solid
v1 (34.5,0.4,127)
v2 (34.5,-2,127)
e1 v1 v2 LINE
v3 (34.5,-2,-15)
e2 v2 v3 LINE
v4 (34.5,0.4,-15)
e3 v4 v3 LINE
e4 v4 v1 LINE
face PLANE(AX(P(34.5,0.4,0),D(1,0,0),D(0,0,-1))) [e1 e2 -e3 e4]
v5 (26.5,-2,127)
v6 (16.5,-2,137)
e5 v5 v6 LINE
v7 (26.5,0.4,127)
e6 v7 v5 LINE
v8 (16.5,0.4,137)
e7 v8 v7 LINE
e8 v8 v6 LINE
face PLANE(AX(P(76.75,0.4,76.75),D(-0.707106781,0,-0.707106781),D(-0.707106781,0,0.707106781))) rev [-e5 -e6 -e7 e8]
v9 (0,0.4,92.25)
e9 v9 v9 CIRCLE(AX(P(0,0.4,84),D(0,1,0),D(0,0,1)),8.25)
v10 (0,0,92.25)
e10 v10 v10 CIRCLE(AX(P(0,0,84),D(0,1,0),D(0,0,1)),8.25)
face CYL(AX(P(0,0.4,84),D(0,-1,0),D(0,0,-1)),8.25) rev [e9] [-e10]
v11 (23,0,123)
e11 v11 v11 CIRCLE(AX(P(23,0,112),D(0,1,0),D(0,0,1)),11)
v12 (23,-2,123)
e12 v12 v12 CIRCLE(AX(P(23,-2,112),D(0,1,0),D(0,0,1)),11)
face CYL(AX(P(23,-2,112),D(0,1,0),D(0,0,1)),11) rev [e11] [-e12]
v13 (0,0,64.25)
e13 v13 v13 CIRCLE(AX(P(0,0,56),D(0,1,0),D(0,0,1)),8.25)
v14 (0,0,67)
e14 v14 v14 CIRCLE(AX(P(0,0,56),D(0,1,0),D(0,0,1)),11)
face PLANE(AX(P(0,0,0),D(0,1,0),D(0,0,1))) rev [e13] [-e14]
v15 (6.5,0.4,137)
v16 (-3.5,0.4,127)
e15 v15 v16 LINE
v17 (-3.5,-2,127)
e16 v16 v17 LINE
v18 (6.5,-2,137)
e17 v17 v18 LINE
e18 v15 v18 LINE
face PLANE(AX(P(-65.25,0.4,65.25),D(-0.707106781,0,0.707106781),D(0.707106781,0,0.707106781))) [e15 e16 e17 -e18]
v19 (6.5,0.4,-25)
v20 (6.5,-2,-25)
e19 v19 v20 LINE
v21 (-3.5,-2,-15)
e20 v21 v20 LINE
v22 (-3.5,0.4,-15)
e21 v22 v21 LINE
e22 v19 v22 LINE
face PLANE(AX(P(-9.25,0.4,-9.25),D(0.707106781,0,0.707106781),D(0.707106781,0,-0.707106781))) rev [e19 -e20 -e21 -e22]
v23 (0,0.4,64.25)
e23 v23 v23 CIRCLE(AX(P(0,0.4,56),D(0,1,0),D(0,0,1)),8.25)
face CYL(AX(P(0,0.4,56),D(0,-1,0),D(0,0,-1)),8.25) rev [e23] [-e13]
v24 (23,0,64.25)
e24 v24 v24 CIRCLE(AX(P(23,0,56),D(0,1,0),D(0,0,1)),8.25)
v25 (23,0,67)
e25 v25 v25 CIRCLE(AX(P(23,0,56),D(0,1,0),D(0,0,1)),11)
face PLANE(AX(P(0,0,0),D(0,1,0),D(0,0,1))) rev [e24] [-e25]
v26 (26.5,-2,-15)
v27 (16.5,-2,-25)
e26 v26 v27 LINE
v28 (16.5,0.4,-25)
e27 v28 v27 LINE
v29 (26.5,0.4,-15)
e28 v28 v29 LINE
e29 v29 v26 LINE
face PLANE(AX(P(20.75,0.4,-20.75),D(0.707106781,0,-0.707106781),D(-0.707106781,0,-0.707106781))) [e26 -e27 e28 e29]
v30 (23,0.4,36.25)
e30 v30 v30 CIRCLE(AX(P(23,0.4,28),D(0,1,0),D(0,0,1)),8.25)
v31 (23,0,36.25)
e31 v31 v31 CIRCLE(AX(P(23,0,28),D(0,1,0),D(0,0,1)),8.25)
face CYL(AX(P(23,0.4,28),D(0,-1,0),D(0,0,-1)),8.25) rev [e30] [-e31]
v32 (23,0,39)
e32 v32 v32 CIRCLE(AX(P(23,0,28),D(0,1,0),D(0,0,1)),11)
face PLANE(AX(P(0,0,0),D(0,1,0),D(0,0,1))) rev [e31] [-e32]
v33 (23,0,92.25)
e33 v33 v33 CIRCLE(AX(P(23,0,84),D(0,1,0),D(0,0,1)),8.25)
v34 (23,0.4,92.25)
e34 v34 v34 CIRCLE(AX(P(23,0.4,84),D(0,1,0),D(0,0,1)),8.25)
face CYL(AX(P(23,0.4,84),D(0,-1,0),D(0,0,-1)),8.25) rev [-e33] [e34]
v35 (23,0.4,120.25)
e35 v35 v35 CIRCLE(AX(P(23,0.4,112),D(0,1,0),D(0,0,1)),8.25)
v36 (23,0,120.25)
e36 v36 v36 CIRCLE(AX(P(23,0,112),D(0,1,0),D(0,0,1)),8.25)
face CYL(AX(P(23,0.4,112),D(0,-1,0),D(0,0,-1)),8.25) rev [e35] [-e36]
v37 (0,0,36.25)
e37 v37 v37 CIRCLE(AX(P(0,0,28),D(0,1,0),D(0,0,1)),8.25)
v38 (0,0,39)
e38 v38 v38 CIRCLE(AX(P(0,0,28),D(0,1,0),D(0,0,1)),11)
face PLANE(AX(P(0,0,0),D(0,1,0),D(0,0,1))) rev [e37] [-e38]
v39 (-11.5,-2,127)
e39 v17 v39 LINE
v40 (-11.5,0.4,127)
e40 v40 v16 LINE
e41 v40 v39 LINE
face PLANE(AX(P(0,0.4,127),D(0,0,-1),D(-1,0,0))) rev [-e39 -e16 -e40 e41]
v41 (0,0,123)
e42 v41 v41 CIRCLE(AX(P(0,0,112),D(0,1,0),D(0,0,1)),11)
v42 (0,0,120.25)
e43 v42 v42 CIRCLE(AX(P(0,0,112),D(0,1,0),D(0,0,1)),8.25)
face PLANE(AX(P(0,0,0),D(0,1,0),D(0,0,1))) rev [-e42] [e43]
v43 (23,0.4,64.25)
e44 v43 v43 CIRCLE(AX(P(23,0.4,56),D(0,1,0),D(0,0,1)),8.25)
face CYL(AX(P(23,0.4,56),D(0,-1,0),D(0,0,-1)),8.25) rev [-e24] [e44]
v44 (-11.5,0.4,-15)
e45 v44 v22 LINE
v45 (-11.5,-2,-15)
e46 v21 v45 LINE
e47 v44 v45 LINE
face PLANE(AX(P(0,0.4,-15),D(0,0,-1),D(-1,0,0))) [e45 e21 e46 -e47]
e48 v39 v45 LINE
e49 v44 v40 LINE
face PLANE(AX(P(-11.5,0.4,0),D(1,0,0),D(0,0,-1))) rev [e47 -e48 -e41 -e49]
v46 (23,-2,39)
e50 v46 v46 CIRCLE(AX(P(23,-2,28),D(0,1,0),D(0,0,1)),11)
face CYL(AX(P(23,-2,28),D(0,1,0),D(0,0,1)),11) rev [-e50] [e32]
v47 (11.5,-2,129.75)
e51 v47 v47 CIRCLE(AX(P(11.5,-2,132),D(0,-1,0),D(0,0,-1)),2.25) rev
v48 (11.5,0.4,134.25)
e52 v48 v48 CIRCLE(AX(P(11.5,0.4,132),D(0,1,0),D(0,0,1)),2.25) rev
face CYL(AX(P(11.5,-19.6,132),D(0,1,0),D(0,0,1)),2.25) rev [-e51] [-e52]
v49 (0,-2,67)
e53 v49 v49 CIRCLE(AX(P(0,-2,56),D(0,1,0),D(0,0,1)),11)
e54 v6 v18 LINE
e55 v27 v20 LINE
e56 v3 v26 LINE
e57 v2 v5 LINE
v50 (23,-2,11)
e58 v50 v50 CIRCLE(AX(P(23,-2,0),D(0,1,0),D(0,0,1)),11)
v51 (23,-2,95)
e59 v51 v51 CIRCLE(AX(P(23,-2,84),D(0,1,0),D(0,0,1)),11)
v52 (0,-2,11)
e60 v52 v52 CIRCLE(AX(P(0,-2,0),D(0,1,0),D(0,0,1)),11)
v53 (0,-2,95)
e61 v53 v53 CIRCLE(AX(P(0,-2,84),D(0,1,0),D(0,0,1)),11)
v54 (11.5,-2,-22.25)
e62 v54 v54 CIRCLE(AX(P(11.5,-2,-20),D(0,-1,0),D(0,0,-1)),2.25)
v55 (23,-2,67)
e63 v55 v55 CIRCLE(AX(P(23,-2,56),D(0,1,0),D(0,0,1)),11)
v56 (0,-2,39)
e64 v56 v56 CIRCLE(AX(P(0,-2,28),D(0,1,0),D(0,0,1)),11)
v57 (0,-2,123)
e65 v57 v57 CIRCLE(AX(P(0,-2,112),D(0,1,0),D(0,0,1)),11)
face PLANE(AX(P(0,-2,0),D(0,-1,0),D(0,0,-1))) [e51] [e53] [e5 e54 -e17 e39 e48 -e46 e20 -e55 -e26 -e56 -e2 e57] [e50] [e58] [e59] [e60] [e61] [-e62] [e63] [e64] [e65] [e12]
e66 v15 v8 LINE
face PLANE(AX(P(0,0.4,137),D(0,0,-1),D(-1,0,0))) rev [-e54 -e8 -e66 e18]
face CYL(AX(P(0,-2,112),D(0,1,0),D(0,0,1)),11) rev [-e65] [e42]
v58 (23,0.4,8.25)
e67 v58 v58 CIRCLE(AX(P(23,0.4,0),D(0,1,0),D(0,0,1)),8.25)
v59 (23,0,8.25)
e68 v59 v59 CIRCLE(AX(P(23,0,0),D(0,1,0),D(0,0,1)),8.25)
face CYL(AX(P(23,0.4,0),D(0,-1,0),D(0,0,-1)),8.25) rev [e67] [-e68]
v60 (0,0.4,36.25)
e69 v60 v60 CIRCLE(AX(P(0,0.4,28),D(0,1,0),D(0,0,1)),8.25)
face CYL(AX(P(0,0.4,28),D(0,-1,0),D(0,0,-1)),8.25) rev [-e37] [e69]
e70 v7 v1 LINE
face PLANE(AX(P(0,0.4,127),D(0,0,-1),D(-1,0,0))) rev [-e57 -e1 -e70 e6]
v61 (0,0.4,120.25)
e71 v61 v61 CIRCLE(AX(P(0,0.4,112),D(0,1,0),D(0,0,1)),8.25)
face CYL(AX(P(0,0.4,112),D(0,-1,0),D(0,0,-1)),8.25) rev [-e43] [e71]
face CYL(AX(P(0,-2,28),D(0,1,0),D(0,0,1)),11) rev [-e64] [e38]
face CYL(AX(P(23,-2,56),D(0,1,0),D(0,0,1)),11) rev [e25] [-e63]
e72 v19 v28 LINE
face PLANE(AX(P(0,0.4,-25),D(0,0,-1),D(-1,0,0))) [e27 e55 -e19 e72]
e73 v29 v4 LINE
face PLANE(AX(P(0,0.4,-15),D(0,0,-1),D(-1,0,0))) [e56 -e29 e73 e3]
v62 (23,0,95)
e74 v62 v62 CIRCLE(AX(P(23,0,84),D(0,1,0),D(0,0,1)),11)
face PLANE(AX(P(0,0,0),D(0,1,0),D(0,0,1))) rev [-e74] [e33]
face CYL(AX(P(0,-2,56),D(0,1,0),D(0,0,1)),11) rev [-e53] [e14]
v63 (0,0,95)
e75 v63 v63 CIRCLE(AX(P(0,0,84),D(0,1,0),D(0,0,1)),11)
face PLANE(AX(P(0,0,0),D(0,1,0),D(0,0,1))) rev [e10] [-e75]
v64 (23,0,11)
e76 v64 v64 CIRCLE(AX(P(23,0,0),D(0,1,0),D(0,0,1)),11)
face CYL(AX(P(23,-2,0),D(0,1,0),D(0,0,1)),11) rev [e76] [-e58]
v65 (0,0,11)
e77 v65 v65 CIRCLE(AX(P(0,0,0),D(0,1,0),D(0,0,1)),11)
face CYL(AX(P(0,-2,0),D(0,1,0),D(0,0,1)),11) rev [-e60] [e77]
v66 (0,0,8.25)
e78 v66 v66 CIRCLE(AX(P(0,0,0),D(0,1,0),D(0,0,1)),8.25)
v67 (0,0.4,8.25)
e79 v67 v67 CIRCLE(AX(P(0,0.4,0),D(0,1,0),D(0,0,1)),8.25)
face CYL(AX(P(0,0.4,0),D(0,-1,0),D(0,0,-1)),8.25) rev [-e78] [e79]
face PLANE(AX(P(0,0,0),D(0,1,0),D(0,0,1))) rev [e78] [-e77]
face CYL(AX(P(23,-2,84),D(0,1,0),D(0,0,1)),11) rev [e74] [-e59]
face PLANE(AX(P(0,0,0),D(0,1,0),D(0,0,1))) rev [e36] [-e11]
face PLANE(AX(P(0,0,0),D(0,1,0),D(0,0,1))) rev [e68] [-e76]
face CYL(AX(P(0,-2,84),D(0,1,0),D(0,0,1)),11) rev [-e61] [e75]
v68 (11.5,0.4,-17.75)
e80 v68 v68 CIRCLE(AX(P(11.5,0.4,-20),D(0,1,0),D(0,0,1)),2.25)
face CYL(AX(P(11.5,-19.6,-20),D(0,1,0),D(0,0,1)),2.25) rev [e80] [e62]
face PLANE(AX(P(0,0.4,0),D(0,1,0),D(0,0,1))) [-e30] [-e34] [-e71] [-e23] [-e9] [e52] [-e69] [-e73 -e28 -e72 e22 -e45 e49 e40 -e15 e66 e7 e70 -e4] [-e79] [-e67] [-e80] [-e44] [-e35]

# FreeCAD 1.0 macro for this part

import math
import FreeCAD as App
import Part
import Sketcher
from FreeCAD import Vector
Q = App.Units.Quantity


def add_polygon(sketch, points):
    """Adds a closed chain of lines whose ends are joined by coincident constraints."""
    first, n = sketch.GeometryCount, len(points)
    for a, b in zip(points, points[1:] + points[:1]):
        sketch.addGeometry(Part.LineSegment(App.Vector(*a, 0), App.Vector(*b, 0)), False)
    for i in range(n):
        sketch.addConstraint(Sketcher.Constraint("Coincident", first + i, 2, first + (i + 1) % n, 1))

doc = App.newDocument("Part")
body = doc.addObject("PartDesign::Body", "Body")

# Sketch on XZ plane
sketch1 = body.newObject("Sketcher::SketchObject", "Sketch")
sketch1.AttachmentSupport = (doc.getObject("XZ_Plane"), [""])
sketch1.MapMode = "FlatFace"
add_polygon(sketch1, [(-11.5, -15), (-11.5, 127), (-3.5, 127), (6.5, 137), (16.5, 137), (26.5, 127), (34.5, 127), (34.5, -15), (26.5, -15), (16.5, -25), (6.5, -25), (-3.5, -15)])  # lines 0-11
sketch1.addGeometry(Part.Circle(Vector(0, 112, 0), Vector(0, 0, 1), 8.25), False)  # 12
sketch1.addGeometry(Part.Circle(Vector(0, 84, 0), Vector(0, 0, 1), 8.25), False)  # 13
sketch1.addGeometry(Part.Circle(Vector(23, 112, 0), Vector(0, 0, 1), 8.25), False)  # 14
sketch1.addGeometry(Part.Circle(Vector(23, 84, 0), Vector(0, 0, 1), 8.25), False)  # 15
sketch1.addGeometry(Part.Circle(Vector(0, 56, 0), Vector(0, 0, 1), 8.25), False)  # 16
sketch1.addGeometry(Part.Circle(Vector(0, 28, 0), Vector(0, 0, 1), 8.25), False)  # 17
sketch1.addGeometry(Part.Circle(Vector(0, 0, 0), Vector(0, 0, 1), 8.25), False)  # 18
sketch1.addGeometry(Part.Circle(Vector(23, 56, 0), Vector(0, 0, 1), 8.25), False)  # 19
sketch1.addGeometry(Part.Circle(Vector(23, 28, 0), Vector(0, 0, 1), 8.25), False)  # 20
sketch1.addGeometry(Part.Circle(Vector(23, 0, 0), Vector(0, 0, 1), 8.25), False)  # 21
sketch1.addConstraint(Sketcher.Constraint("Vertical", 0))
sketch1.addConstraint(Sketcher.Constraint("Horizontal", 1))
sketch1.addConstraint(Sketcher.Constraint("Horizontal", 3))
sketch1.addConstraint(Sketcher.Constraint("Horizontal", 5))
sketch1.addConstraint(Sketcher.Constraint("Vertical", 6))
sketch1.addConstraint(Sketcher.Constraint("Horizontal", 7))
sketch1.addConstraint(Sketcher.Constraint("Horizontal", 9))
sketch1.addConstraint(Sketcher.Constraint("Horizontal", 11))
sketch1.addConstraint(Sketcher.Constraint("Coincident", 18, 3, -1, 1))
sketch1.addConstraint(Sketcher.Constraint("Equal", 12, 13))
sketch1.addConstraint(Sketcher.Constraint("Equal", 13, 14))
sketch1.addConstraint(Sketcher.Constraint("Equal", 14, 15))
sketch1.addConstraint(Sketcher.Constraint("Equal", 15, 16))
sketch1.addConstraint(Sketcher.Constraint("Equal", 16, 17))
sketch1.addConstraint(Sketcher.Constraint("Equal", 17, 18))
sketch1.addConstraint(Sketcher.Constraint("Equal", 18, 19))
sketch1.addConstraint(Sketcher.Constraint("Equal", 19, 20))
sketch1.addConstraint(Sketcher.Constraint("Equal", 20, 21))
sketch1.addConstraint(Sketcher.Constraint("PointOnObject", 12, 3, -2))
sketch1.addConstraint(Sketcher.Constraint("PointOnObject", 13, 3, -2))
sketch1.addConstraint(Sketcher.Constraint("PointOnObject", 16, 3, -2))
sketch1.addConstraint(Sketcher.Constraint("PointOnObject", 17, 3, -2))
sketch1.addConstraint(Sketcher.Constraint("PointOnObject", 21, 3, -1))
sketch1.addConstraint(Sketcher.Constraint("Perpendicular", 2, 4))
sketch1.addConstraint(Sketcher.Constraint("Perpendicular", 4, 8))
sketch1.addConstraint(Sketcher.Constraint("Perpendicular", 8, 10))
sketch1.addConstraint(Sketcher.Constraint("Horizontal", 12, 3, 14, 3))
sketch1.addConstraint(Sketcher.Constraint("Horizontal", 13, 3, 15, 3))
sketch1.addConstraint(Sketcher.Constraint("Horizontal", 16, 3, 19, 3))
sketch1.addConstraint(Sketcher.Constraint("Horizontal", 17, 3, 20, 3))
sketch1.addConstraint(Sketcher.Constraint("Horizontal", 1, 2, 4, 2))
sketch1.addConstraint(Sketcher.Constraint("Horizontal", 7, 2, 10, 2))
sketch1.addConstraint(Sketcher.Constraint("Vertical", 14, 3, 15, 3))
sketch1.addConstraint(Sketcher.Constraint("Vertical", 15, 3, 19, 3))
sketch1.addConstraint(Sketcher.Constraint("Vertical", 19, 3, 20, 3))
sketch1.addConstraint(Sketcher.Constraint("Vertical", 20, 3, 21, 3))
sketch1.addConstraint(Sketcher.Constraint("Vertical", 4, 2, 7, 2))
sketch1.addConstraint(Sketcher.Constraint("Vertical", 3, 2, 8, 2))
sketch1.addConstraint(Sketcher.Constraint("Vertical", 2, 2, 9, 2))
sketch1.addConstraint(Sketcher.Constraint("Vertical", 1, 2, 10, 2))
sketch1.addConstraint(Sketcher.Constraint("Equal", 1, 5))
sketch1.addConstraint(Sketcher.Constraint("Diameter", 12, Q("16.5 mm")))
sketch1.addConstraint(Sketcher.Constraint("DistanceX", 1, 1, 1, 2, Q("8 mm")))
sketch1.addConstraint(Sketcher.Constraint("DistanceX", 3, 1, 3, 2, Q("10 mm")))
sketch1.addConstraint(Sketcher.Constraint("DistanceY", 0, 1, 0, 2, Q("142 mm")))
sketch1.addConstraint(Sketcher.Constraint("DistanceY", -1, 1, 12, 3, Q("112 mm")))
sketch1.addConstraint(Sketcher.Constraint("DistanceY", -1, 1, 13, 3, Q("84 mm")))
sketch1.addConstraint(Sketcher.Constraint("DistanceX", -1, 1, 14, 3, Q("23 mm")))
sketch1.addConstraint(Sketcher.Constraint("DistanceY", -1, 1, 16, 3, Q("56 mm")))
sketch1.addConstraint(Sketcher.Constraint("DistanceY", -1, 1, 17, 3, Q("28 mm")))
sketch1.addConstraint(Sketcher.Constraint("DistanceY", -1, 1, 0, 2, Q("127 mm")))
sketch1.addConstraint(Sketcher.Constraint("DistanceY", -1, 1, 2, 2, Q("137 mm")))
sketch1.addConstraint(Sketcher.Constraint("DistanceX", 0, 2, -1, 1, Q("11.5 mm")))
pad1 = body.newObject("PartDesign::Pad", "Pad")
pad1.Profile = sketch1
pad1.Length = 0.4
pad1.Reversed = True

# Sketch on XZ plane
sketch2 = body.newObject("Sketcher::SketchObject", "Sketch001")
sketch2.AttachmentSupport = (doc.getObject("XZ_Plane"), [""])
sketch2.MapMode = "FlatFace"
add_polygon(sketch2, [(16.5, -25), (6.5, -25), (-3.5, -15), (-11.5, -15), (-11.5, 127), (-3.5, 127), (6.5, 137), (16.5, 137), (26.5, 127), (34.5, 127), (34.5, -15), (26.5, -15)])  # lines 0-11
sketch2.addGeometry(Part.Circle(Vector(0, 112, 0), Vector(0, 0, 1), 11), False)  # 12
sketch2.addGeometry(Part.Circle(Vector(0, 84, 0), Vector(0, 0, 1), 11), False)  # 13
sketch2.addGeometry(Part.Circle(Vector(23, 112, 0), Vector(0, 0, 1), 11), False)  # 14
sketch2.addGeometry(Part.Circle(Vector(23, 84, 0), Vector(0, 0, 1), 11), False)  # 15
sketch2.addGeometry(Part.Circle(Vector(0, 56, 0), Vector(0, 0, 1), 11), False)  # 16
sketch2.addGeometry(Part.Circle(Vector(0, 28, 0), Vector(0, 0, 1), 11), False)  # 17
sketch2.addGeometry(Part.Circle(Vector(0, 0, 0), Vector(0, 0, 1), 11), False)  # 18
sketch2.addGeometry(Part.Circle(Vector(23, 56, 0), Vector(0, 0, 1), 11), False)  # 19
sketch2.addGeometry(Part.Circle(Vector(23, 28, 0), Vector(0, 0, 1), 11), False)  # 20
sketch2.addGeometry(Part.Circle(Vector(23, 0, 0), Vector(0, 0, 1), 11), False)  # 21
sketch2.addConstraint(Sketcher.Constraint("Horizontal", 0))
sketch2.addConstraint(Sketcher.Constraint("Horizontal", 2))
sketch2.addConstraint(Sketcher.Constraint("Vertical", 3))
sketch2.addConstraint(Sketcher.Constraint("Horizontal", 4))
sketch2.addConstraint(Sketcher.Constraint("Horizontal", 6))
sketch2.addConstraint(Sketcher.Constraint("Horizontal", 8))
sketch2.addConstraint(Sketcher.Constraint("Vertical", 9))
sketch2.addConstraint(Sketcher.Constraint("Horizontal", 10))
sketch2.addConstraint(Sketcher.Constraint("Coincident", 18, 3, -1, 1))
sketch2.addConstraint(Sketcher.Constraint("Equal", 12, 13))
sketch2.addConstraint(Sketcher.Constraint("Equal", 13, 14))
sketch2.addConstraint(Sketcher.Constraint("Equal", 14, 15))
sketch2.addConstraint(Sketcher.Constraint("Equal", 15, 16))
sketch2.addConstraint(Sketcher.Constraint("Equal", 16, 17))
sketch2.addConstraint(Sketcher.Constraint("Equal", 17, 18))
sketch2.addConstraint(Sketcher.Constraint("Equal", 18, 19))
sketch2.addConstraint(Sketcher.Constraint("Equal", 19, 20))
sketch2.addConstraint(Sketcher.Constraint("Equal", 20, 21))
sketch2.addConstraint(Sketcher.Constraint("PointOnObject", 12, 3, -2))
sketch2.addConstraint(Sketcher.Constraint("PointOnObject", 13, 3, -2))
sketch2.addConstraint(Sketcher.Constraint("PointOnObject", 16, 3, -2))
sketch2.addConstraint(Sketcher.Constraint("PointOnObject", 17, 3, -2))
sketch2.addConstraint(Sketcher.Constraint("PointOnObject", 21, 3, -1))
sketch2.addConstraint(Sketcher.Constraint("Perpendicular", 1, 5))
sketch2.addConstraint(Sketcher.Constraint("Perpendicular", 5, 7))
sketch2.addConstraint(Sketcher.Constraint("Perpendicular", 7, 11))
sketch2.addConstraint(Sketcher.Constraint("Horizontal", 12, 3, 14, 3))
sketch2.addConstraint(Sketcher.Constraint("Horizontal", 13, 3, 15, 3))
sketch2.addConstraint(Sketcher.Constraint("Horizontal", 16, 3, 19, 3))
sketch2.addConstraint(Sketcher.Constraint("Horizontal", 17, 3, 20, 3))
sketch2.addConstraint(Sketcher.Constraint("Horizontal", 4, 2, 7, 2))
sketch2.addConstraint(Sketcher.Constraint("Horizontal", 2, 2, 9, 2))
sketch2.addConstraint(Sketcher.Constraint("Vertical", 14, 3, 15, 3))
sketch2.addConstraint(Sketcher.Constraint("Vertical", 15, 3, 19, 3))
sketch2.addConstraint(Sketcher.Constraint("Vertical", 19, 3, 20, 3))
sketch2.addConstraint(Sketcher.Constraint("Vertical", 20, 3, 21, 3))
sketch2.addConstraint(Sketcher.Constraint("Vertical", 1, 2, 4, 2))
sketch2.addConstraint(Sketcher.Constraint("Vertical", 0, 2, 5, 2))
sketch2.addConstraint(Sketcher.Constraint("Vertical", 7, 2, 10, 2))
sketch2.addConstraint(Sketcher.Constraint("Vertical", 6, 2, 11, 2))
sketch2.addConstraint(Sketcher.Constraint("Equal", 4, 8))
sketch2.addConstraint(Sketcher.Constraint("Diameter", 12, Q("22 mm")))
sketch2.addConstraint(Sketcher.Constraint("DistanceX", 0, 2, 0, 1, Q("10 mm")))
sketch2.addConstraint(Sketcher.Constraint("DistanceX", 2, 2, 2, 1, Q("8 mm")))
sketch2.addConstraint(Sketcher.Constraint("DistanceY", 3, 1, 3, 2, Q("142 mm")))
sketch2.addConstraint(Sketcher.Constraint("DistanceY", -1, 1, 12, 3, Q("112 mm")))
sketch2.addConstraint(Sketcher.Constraint("DistanceY", -1, 1, 13, 3, Q("84 mm")))
sketch2.addConstraint(Sketcher.Constraint("DistanceX", -1, 1, 14, 3, Q("23 mm")))
sketch2.addConstraint(Sketcher.Constraint("DistanceY", -1, 1, 16, 3, Q("56 mm")))
sketch2.addConstraint(Sketcher.Constraint("DistanceY", -1, 1, 17, 3, Q("28 mm")))
sketch2.addConstraint(Sketcher.Constraint("DistanceY", 0, 2, -1, 1, Q("25 mm")))
sketch2.addConstraint(Sketcher.Constraint("DistanceY", 1, 2, -1, 1, Q("15 mm")))
sketch2.addConstraint(Sketcher.Constraint("DistanceX", -1, 1, 0, 2, Q("6.5 mm")))
pad2 = body.newObject("PartDesign::Pad", "Pad001")
pad2.Profile = sketch2
pad2.Length = 2

# Sketch on XZ plane
sketch3 = body.newObject("Sketcher::SketchObject", "Sketch002")
sketch3.AttachmentSupport = (doc.getObject("XZ_Plane"), [""])
sketch3.MapMode = "FlatFace"
sketch3.AttachmentOffset = App.Placement(Vector(0, 0, -0.4), App.Rotation())
sketch3.addGeometry(Part.ArcOfCircle(Part.Circle(Vector(11.5, -20, 0), Vector(0, 0, 1), 2.25), math.radians(90), math.radians(270)), False)
sketch3.addGeometry(Part.ArcOfCircle(Part.Circle(Vector(11.5, -20, 0), Vector(0, 0, 1), 2.25), math.radians(0), math.radians(90)), False)
sketch3.addGeometry(Part.ArcOfCircle(Part.Circle(Vector(11.5, -20, 0), Vector(0, 0, 1), 2.25), math.radians(-90), math.radians(0)), False)
sketch3.addGeometry(Part.Circle(Vector(11.5, 132, 0), Vector(0, 0, 1), 2.25), False)
sketch3.addConstraint(Sketcher.Constraint("Tangent", 0, 1, 1, 2))
sketch3.addConstraint(Sketcher.Constraint("Tangent", 1, 1, 2, 2))
sketch3.addConstraint(Sketcher.Constraint("Tangent", 2, 1, 0, 2))
sketch3.addConstraint(Sketcher.Constraint("Equal", 2, 3))
sketch3.addConstraint(Sketcher.Constraint("Horizontal", 2, 3, 1, 1))
sketch3.addConstraint(Sketcher.Constraint("Vertical", 2, 3, 3, 3))
sketch3.addConstraint(Sketcher.Constraint("Vertical", 3, 3, 0, 1))
sketch3.addConstraint(Sketcher.Constraint("Vertical", 0, 1, 2, 1))
sketch3.addConstraint(Sketcher.Constraint("Diameter", 3, Q("4.5 mm")))
sketch3.addConstraint(Sketcher.Constraint("DistanceY", 0, 3, -1, 1, Q("20 mm")))
sketch3.addConstraint(Sketcher.Constraint("DistanceY", -1, 1, 3, 3, Q("132 mm")))
sketch3.addConstraint(Sketcher.Constraint("DistanceX", -1, 1, 0, 3, Q("11.5 mm")))
pocket1 = body.newObject("PartDesign::Pocket", "Pocket")
pocket1.Profile = sketch3
pocket1.Length = 20
pocket1.Reversed = True

doc.recompute()
